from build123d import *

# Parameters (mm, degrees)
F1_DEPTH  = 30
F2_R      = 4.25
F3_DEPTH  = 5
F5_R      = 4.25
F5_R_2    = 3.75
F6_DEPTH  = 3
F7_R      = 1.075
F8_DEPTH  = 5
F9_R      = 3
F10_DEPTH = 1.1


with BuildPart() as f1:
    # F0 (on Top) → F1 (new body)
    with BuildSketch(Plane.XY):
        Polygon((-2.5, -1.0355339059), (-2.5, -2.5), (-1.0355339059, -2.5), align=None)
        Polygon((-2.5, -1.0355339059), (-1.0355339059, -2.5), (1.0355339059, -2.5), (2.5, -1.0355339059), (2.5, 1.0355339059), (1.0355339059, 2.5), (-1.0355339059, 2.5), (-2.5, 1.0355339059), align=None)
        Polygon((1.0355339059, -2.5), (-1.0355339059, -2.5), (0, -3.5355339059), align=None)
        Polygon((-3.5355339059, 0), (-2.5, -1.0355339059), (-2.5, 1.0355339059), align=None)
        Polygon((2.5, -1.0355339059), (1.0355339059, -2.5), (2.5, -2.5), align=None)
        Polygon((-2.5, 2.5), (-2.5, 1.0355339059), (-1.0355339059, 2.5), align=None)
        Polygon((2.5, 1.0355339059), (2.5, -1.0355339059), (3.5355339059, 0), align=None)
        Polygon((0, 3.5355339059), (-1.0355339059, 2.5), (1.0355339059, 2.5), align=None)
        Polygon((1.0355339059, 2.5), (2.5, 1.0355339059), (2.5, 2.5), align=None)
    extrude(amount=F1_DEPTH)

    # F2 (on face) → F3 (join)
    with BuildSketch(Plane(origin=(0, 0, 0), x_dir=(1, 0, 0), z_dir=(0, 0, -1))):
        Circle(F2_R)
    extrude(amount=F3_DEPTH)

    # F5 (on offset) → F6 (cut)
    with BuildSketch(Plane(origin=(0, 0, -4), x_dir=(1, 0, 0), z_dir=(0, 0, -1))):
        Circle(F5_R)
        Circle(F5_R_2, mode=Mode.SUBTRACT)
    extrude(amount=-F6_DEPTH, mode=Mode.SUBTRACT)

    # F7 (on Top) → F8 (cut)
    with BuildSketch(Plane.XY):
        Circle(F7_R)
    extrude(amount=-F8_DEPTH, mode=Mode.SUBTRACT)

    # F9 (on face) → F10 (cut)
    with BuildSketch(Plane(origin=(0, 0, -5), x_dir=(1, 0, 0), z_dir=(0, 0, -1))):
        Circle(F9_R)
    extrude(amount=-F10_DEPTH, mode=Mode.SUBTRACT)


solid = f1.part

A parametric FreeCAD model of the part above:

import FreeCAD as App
import Part
import Sketcher
from FreeCAD import Vector
Q = App.Units.Quantity


def add_polygon(sketch, points):
    """Adds a closed chain of lines whose ends are joined by coincident constraints."""
    first, n = sketch.GeometryCount, len(points)
    for a, b in zip(points, points[1:] + points[:1]):
        sketch.addGeometry(Part.LineSegment(App.Vector(*a, 0), App.Vector(*b, 0)), False)
    for i in range(n):
        sketch.addConstraint(Sketcher.Constraint("Coincident", first + i, 2, first + (i + 1) % n, 1))

doc = App.newDocument("Part")
params = doc.addObject("Spreadsheet::Sheet", "Params")
for row, (alias, value) in enumerate([
    ("pad1_length", "30 mm"),
    ("sketch2_diameter", "8.5 mm"),
    ("pad2_length", "5 mm"),
    ("sketch3_diameter", "8.5 mm"),
    ("sketch3_diameter2", "7.5 mm"),
    ("pocket1_length", "3 mm"),
    ("sketch4_diameter", "2.15 mm"),
    ("pocket2_length", "5 mm"),
    ("sketch5_diameter", "6 mm"),
    ("pocket3_length", "1.1 mm"),
], start=1):
    params.set(f"A{row}", alias)
    params.set(f"B{row}", "=" + value)
    params.setAlias(f"B{row}", alias)

body = doc.addObject("PartDesign::Body", "Body")

# Sketch on XY plane
sketch1 = body.newObject("Sketcher::SketchObject", "Sketch")
sketch1.AttachmentSupport = (doc.getObject("XY_Plane"), [""])
sketch1.MapMode = "FlatFace"
add_polygon(sketch1, [(-2.5, -2.5), (-1.035534, -2.5), (0, -3.535534), (1.035534, -2.5), (2.5, -2.5), (2.5, -1.035534), (3.535534, 0), (2.5, 1.035534), (2.5, 2.5), (1.035534, 2.5), (0, 3.535534), (-1.035534, 2.5), (-2.5, 2.5), (-2.5, 1.035534), (-3.535534, 0), (-2.5, -1.035534)])  # lines 0-15
sketch1.addConstraint([
    Sketcher.Constraint("Horizontal", 0),
    Sketcher.Constraint("Horizontal", 3),
    Sketcher.Constraint("Vertical", 4),
    Sketcher.Constraint("Vertical", 7),
    Sketcher.Constraint("Horizontal", 8),
    Sketcher.Constraint("Horizontal", 11),
    Sketcher.Constraint("Vertical", 12),
    Sketcher.Constraint("Vertical", 15),
    Sketcher.Constraint("Symmetric", 0, 2, 8, 2, -1, 1),
    Sketcher.Constraint("Symmetric", 1, 2, 9, 2, -1, 1),
    Sketcher.Constraint("Symmetric", 2, 2, 10, 2, -1, 1),
    Sketcher.Constraint("Symmetric", 4, 2, 12, 2, -1, 1),
    Sketcher.Constraint("Symmetric", 5, 2, 13, 2, -1, 1),
    Sketcher.Constraint("Symmetric", 6, 2, 14, 2, -1, 1),
    Sketcher.Constraint("Symmetric", 0, 2, 2, 2, -2),
    Sketcher.Constraint("Symmetric", 6, 2, 12, 2, -2),
    Sketcher.Constraint("PointOnObject", 1, 2, -2),
    Sketcher.Constraint("PointOnObject", 5, 2, -1),
    Sketcher.Constraint("Perpendicular", 1, 2),
    Sketcher.Constraint("Parallel", 2, 5),
    Sketcher.Constraint("Equal", 11, 4),
    Sketcher.Constraint("Equal", 2, 5),
    Sketcher.Constraint("DistanceY", 3, 2, 7, 2, Q("5 mm")),
    Sketcher.Constraint("DistanceX", 0, 1, 0, 2, Q("1.464466 mm")),
])
pad1 = body.newObject("PartDesign::Pad", "Pad")
pad1.Profile = sketch1
pad1.setExpression("Length", "Params.pad1_length")

# Sketch on XY plane
sketch2 = body.newObject("Sketcher::SketchObject", "Sketch001")
sketch2.AttachmentSupport = (doc.getObject("XY_Plane"), [""])
sketch2.MapMode = "FlatFace"
sketch2.addGeometry(Part.Circle(Vector(0, 0, 0), Vector(0, 0, 1), 4.25), False)
sketch2.addConstraint([
    Sketcher.Constraint("Coincident", 0, 3, -1, 1),
    Sketcher.Constraint("Diameter", 0, Q("8.5 mm")),
])
sketch2.setExpression("Constraints[1]", "Params.sketch2_diameter")
pad2 = body.newObject("PartDesign::Pad", "Pad001")
pad2.Profile = sketch2
pad2.setExpression("Length", "Params.pad2_length")
pad2.Reversed = True

# Sketch on XY plane
sketch3 = body.newObject("Sketcher::SketchObject", "Sketch002")
sketch3.AttachmentSupport = (doc.getObject("XY_Plane"), [""])
sketch3.MapMode = "FlatFace"
sketch3.AttachmentOffset = App.Placement(Vector(0, 0, -4), App.Rotation())
sketch3.addGeometry([
    Part.Circle(Vector(0, 0, 0), Vector(0, 0, 1), 4.25),
    Part.Circle(Vector(0, 0, 0), Vector(0, 0, 1), 3.75),
], False)
sketch3.addConstraint([
    Sketcher.Constraint("Coincident", 0, 3, -1, 1),
    Sketcher.Constraint("Coincident", 1, 3, -1, 1),
    Sketcher.Constraint("Diameter", 0, Q("8.5 mm")),
    Sketcher.Constraint("Diameter", 1, Q("7.5 mm")),
])
sketch3.setExpression("Constraints[2]", "Params.sketch3_diameter")
sketch3.setExpression("Constraints[3]", "Params.sketch3_diameter2")
pocket1 = body.newObject("PartDesign::Pocket", "Pocket")
pocket1.Profile = sketch3
pocket1.setExpression("Length", "Params.pocket1_length")
pocket1.Reversed = True

# Sketch on XY plane
sketch4 = body.newObject("Sketcher::SketchObject", "Sketch003")
sketch4.AttachmentSupport = (doc.getObject("XY_Plane"), [""])
sketch4.MapMode = "FlatFace"
sketch4.addGeometry(Part.Circle(Vector(0, 0, 0), Vector(0, 0, 1), 1.075), False)
sketch4.addConstraint([
    Sketcher.Constraint("Coincident", 0, 3, -1, 1),
    Sketcher.Constraint("Diameter", 0, Q("2.15 mm")),
])
sketch4.setExpression("Constraints[1]", "Params.sketch4_diameter")
pocket2 = body.newObject("PartDesign::Pocket", "Pocket001")
pocket2.Profile = sketch4
pocket2.setExpression("Length", "Params.pocket2_length")

# Sketch on XY plane
sketch5 = body.newObject("Sketcher::SketchObject", "Sketch004")
sketch5.AttachmentSupport = (doc.getObject("XY_Plane"), [""])
sketch5.MapMode = "FlatFace"
sketch5.AttachmentOffset = App.Placement(Vector(0, 0, -5), App.Rotation())
sketch5.addGeometry(Part.Circle(Vector(0, 0, 0), Vector(0, 0, 1), 3), False)
sketch5.addConstraint([
    Sketcher.Constraint("Coincident", 0, 3, -1, 1),
    Sketcher.Constraint("Diameter", 0, Q("6 mm")),
])
sketch5.setExpression("Constraints[1]", "Params.sketch5_diameter")
pocket3 = body.newObject("PartDesign::Pocket", "Pocket002")
pocket3.Profile = sketch5
pocket3.setExpression("Length", "Params.pocket3_length")
pocket3.Reversed = True

doc.recompute()
